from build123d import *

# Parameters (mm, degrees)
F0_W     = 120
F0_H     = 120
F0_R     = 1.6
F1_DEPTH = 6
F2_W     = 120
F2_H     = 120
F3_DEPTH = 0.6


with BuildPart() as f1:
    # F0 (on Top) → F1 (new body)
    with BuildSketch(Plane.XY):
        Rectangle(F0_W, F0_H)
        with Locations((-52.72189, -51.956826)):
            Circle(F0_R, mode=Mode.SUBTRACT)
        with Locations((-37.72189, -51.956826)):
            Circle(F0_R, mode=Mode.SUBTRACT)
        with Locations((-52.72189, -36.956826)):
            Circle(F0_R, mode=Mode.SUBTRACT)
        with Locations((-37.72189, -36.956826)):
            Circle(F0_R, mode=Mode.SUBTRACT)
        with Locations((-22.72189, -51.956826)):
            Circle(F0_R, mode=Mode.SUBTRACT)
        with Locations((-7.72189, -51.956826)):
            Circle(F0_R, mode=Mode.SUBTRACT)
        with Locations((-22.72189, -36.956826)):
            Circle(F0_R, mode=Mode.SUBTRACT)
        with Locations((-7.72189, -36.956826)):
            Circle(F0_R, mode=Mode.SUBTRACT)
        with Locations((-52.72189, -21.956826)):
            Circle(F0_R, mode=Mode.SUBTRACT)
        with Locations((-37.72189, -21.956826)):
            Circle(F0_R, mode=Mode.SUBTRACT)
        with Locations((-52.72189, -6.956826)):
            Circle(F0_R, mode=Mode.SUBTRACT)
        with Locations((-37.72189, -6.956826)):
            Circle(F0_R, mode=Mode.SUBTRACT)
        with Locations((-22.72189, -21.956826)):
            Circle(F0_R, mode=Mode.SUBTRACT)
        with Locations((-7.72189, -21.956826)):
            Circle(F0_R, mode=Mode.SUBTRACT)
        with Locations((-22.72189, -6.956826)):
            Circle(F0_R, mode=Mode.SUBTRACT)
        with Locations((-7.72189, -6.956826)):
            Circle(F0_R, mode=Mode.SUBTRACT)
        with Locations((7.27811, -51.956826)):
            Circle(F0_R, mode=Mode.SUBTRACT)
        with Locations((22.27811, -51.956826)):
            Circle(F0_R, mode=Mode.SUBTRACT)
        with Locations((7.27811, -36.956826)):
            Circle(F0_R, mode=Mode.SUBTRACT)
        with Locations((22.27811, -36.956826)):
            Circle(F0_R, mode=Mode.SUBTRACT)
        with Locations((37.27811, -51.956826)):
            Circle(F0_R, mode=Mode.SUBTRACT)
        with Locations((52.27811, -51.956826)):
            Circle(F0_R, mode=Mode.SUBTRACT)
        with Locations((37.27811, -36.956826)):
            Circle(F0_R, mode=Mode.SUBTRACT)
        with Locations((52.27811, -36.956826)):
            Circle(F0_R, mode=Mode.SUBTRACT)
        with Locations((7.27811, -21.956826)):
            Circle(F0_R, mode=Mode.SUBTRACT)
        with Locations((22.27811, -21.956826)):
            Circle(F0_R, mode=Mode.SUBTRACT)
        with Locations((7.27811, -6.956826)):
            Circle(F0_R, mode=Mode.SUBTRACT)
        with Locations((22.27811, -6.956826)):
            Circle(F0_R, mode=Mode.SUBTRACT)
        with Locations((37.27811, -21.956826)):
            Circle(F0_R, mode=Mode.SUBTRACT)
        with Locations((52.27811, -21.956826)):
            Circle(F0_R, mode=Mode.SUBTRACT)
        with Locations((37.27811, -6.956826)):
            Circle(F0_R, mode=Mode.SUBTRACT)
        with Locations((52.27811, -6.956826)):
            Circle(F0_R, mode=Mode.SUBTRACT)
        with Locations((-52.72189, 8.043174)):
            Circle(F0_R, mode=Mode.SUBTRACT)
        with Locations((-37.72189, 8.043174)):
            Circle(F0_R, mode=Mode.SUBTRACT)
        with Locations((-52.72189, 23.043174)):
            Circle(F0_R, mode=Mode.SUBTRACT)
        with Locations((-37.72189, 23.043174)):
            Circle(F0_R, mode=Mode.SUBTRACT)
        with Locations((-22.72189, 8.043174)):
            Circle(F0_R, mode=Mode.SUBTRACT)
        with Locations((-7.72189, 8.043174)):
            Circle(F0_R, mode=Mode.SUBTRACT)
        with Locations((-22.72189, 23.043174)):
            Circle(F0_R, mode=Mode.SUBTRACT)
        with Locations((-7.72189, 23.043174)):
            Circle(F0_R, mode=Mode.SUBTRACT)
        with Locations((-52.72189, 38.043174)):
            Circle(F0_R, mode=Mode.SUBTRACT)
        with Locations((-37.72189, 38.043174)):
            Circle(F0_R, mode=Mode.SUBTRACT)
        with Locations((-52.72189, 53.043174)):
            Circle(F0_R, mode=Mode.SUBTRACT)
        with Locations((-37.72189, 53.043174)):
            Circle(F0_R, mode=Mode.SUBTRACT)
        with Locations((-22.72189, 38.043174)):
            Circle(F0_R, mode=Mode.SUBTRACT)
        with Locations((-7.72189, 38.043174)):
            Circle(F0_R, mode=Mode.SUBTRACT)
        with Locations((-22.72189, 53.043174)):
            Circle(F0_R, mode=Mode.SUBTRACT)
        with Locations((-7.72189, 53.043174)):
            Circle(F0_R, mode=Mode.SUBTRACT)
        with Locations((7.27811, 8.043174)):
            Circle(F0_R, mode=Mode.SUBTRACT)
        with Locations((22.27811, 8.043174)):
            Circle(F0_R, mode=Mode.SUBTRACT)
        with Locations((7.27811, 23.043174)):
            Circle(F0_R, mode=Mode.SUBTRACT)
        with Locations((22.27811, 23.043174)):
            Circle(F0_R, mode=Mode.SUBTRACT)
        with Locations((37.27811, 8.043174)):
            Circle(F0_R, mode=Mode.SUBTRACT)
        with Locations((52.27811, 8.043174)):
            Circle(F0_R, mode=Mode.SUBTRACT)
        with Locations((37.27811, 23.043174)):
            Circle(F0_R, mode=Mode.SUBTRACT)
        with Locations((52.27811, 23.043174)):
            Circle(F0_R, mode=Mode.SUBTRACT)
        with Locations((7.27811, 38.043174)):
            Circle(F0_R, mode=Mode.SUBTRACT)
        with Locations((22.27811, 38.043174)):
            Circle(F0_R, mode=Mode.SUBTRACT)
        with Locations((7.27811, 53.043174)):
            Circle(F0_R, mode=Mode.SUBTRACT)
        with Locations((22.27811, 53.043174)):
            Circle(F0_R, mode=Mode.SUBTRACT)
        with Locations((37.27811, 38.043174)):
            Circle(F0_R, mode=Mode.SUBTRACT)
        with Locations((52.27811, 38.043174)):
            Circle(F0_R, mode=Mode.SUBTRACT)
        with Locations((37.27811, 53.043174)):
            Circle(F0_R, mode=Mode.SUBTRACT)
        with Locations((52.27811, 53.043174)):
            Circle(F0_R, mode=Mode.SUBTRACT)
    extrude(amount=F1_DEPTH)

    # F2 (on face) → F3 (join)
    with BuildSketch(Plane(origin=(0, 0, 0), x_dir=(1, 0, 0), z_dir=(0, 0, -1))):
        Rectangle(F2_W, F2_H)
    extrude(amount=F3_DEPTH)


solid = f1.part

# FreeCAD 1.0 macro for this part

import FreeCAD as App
import Part
import Sketcher
from FreeCAD import Vector

doc = App.newDocument("Part")
body = doc.addObject("PartDesign::Body", "Body")

sketch1 = body.newObject("Sketcher::SketchObject", "Sketch")
sketch1.AttachmentSupport = (doc.getObject("XY_Plane"), [""])
sketch1.MapMode = "FlatFace"
sketch1.addGeometry([
    Part.LineSegment(Vector(-60, 60, 0), Vector(-60, -60, 0)),
    Part.LineSegment(Vector(-60, -60, 0), Vector(60, -60, 0)),
    Part.LineSegment(Vector(60, -60, 0), Vector(60, 60, 0)),
    Part.LineSegment(Vector(60, 60, 0), Vector(-60, 60, 0)),
    Part.Circle(Vector(-52.7, -52, 0), Vector(0, 0, 1), 1.6),
    Part.Circle(Vector(-37.7, -52, 0), Vector(0, 0, 1), 1.6),
    Part.Circle(Vector(-52.7, -37, 0), Vector(0, 0, 1), 1.6),
    Part.Circle(Vector(-37.7, -37, 0), Vector(0, 0, 1), 1.6),
    Part.Circle(Vector(-22.7, -52, 0), Vector(0, 0, 1), 1.6),
    Part.Circle(Vector(-7.7, -52, 0), Vector(0, 0, 1), 1.6),
    Part.Circle(Vector(-22.7, -37, 0), Vector(0, 0, 1), 1.6),
    Part.Circle(Vector(-7.7, -37, 0), Vector(0, 0, 1), 1.6),
    Part.Circle(Vector(-52.7, -22, 0), Vector(0, 0, 1), 1.6),
    Part.Circle(Vector(-37.7, -22, 0), Vector(0, 0, 1), 1.6),
    Part.Circle(Vector(-52.7, -7, 0), Vector(0, 0, 1), 1.6),
    Part.Circle(Vector(-37.7, -7, 0), Vector(0, 0, 1), 1.6),
    Part.Circle(Vector(-22.7, -22, 0), Vector(0, 0, 1), 1.6),
    Part.Circle(Vector(-7.7, -22, 0), Vector(0, 0, 1), 1.6),
    Part.Circle(Vector(-22.7, -7, 0), Vector(0, 0, 1), 1.6),
    Part.Circle(Vector(-7.7, -7, 0), Vector(0, 0, 1), 1.6),
    Part.Circle(Vector(7.3, -52, 0), Vector(0, 0, 1), 1.6),
    Part.Circle(Vector(22.3, -52, 0), Vector(0, 0, 1), 1.6),
    Part.Circle(Vector(7.3, -37, 0), Vector(0, 0, 1), 1.6),
    Part.Circle(Vector(22.3, -37, 0), Vector(0, 0, 1), 1.6),
    Part.Circle(Vector(37.3, -52, 0), Vector(0, 0, 1), 1.6),
    Part.Circle(Vector(52.3, -52, 0), Vector(0, 0, 1), 1.6),
    Part.Circle(Vector(37.3, -37, 0), Vector(0, 0, 1), 1.6),
    Part.Circle(Vector(52.3, -37, 0), Vector(0, 0, 1), 1.6),
    Part.Circle(Vector(7.3, -22, 0), Vector(0, 0, 1), 1.6),
    Part.Circle(Vector(22.3, -22, 0), Vector(0, 0, 1), 1.6),
    Part.Circle(Vector(7.3, -7, 0), Vector(0, 0, 1), 1.6),
    Part.Circle(Vector(22.3, -7, 0), Vector(0, 0, 1), 1.6),
    Part.Circle(Vector(37.3, -22, 0), Vector(0, 0, 1), 1.6),
    Part.Circle(Vector(52.3, -22, 0), Vector(0, 0, 1), 1.6),
    Part.Circle(Vector(37.3, -7, 0), Vector(0, 0, 1), 1.6),
    Part.Circle(Vector(52.3, -7, 0), Vector(0, 0, 1), 1.6),
    Part.Circle(Vector(-52.7, 8, 0), Vector(0, 0, 1), 1.6),
    Part.Circle(Vector(-37.7, 8, 0), Vector(0, 0, 1), 1.6),
    Part.Circle(Vector(-52.7, 23, 0), Vector(0, 0, 1), 1.6),
    Part.Circle(Vector(-37.7, 23, 0), Vector(0, 0, 1), 1.6),
    Part.Circle(Vector(-22.7, 8, 0), Vector(0, 0, 1), 1.6),
    Part.Circle(Vector(-7.7, 8, 0), Vector(0, 0, 1), 1.6),
    Part.Circle(Vector(-22.7, 23, 0), Vector(0, 0, 1), 1.6),
    Part.Circle(Vector(-7.7, 23, 0), Vector(0, 0, 1), 1.6),
    Part.Circle(Vector(-52.7, 38, 0), Vector(0, 0, 1), 1.6),
    Part.Circle(Vector(-37.7, 38, 0), Vector(0, 0, 1), 1.6),
    Part.Circle(Vector(-52.7, 53, 0), Vector(0, 0, 1), 1.6),
    Part.Circle(Vector(-37.7, 53, 0), Vector(0, 0, 1), 1.6),
    Part.Circle(Vector(-22.7, 38, 0), Vector(0, 0, 1), 1.6),
    Part.Circle(Vector(-7.7, 38, 0), Vector(0, 0, 1), 1.6),
    Part.Circle(Vector(-22.7, 53, 0), Vector(0, 0, 1), 1.6),
    Part.Circle(Vector(-7.7, 53, 0), Vector(0, 0, 1), 1.6),
    Part.Circle(Vector(7.3, 8, 0), Vector(0, 0, 1), 1.6),
    Part.Circle(Vector(22.3, 8, 0), Vector(0, 0, 1), 1.6),
    Part.Circle(Vector(7.3, 23, 0), Vector(0, 0, 1), 1.6),
    Part.Circle(Vector(22.3, 23, 0), Vector(0, 0, 1), 1.6),
    Part.Circle(Vector(37.3, 8, 0), Vector(0, 0, 1), 1.6),
    Part.Circle(Vector(52.3, 8, 0), Vector(0, 0, 1), 1.6),
    Part.Circle(Vector(37.3, 23, 0), Vector(0, 0, 1), 1.6),
    Part.Circle(Vector(52.3, 23, 0), Vector(0, 0, 1), 1.6),
    Part.Circle(Vector(7.3, 38, 0), Vector(0, 0, 1), 1.6),
    Part.Circle(Vector(22.3, 38, 0), Vector(0, 0, 1), 1.6),
    Part.Circle(Vector(7.3, 53, 0), Vector(0, 0, 1), 1.6),
    Part.Circle(Vector(22.3, 53, 0), Vector(0, 0, 1), 1.6),
    Part.Circle(Vector(37.3, 38, 0), Vector(0, 0, 1), 1.6),
    Part.Circle(Vector(52.3, 38, 0), Vector(0, 0, 1), 1.6),
    Part.Circle(Vector(37.3, 53, 0), Vector(0, 0, 1), 1.6),
    Part.Circle(Vector(52.3, 53, 0), Vector(0, 0, 1), 1.6),
], False)
sketch1.addConstraint([
    Sketcher.Constraint("Coincident", 0, 2, 1, 1),
    Sketcher.Constraint("Coincident", 1, 2, 2, 1),
    Sketcher.Constraint("Coincident", 2, 2, 3, 1),
    Sketcher.Constraint("Coincident", 3, 2, 0, 1),
    Sketcher.Constraint("Vertical", 0),
    Sketcher.Constraint("Horizontal", 1),
    Sketcher.Constraint("Vertical", 2),
    Sketcher.Constraint("Horizontal", 3),
    Sketcher.Constraint("Equal", 4, 5),
    Sketcher.Constraint("Equal", 5, 6),
    Sketcher.Constraint("Equal", 6, 7),
    Sketcher.Constraint("Equal", 7, 8),
    Sketcher.Constraint("Equal", 8, 9),
    Sketcher.Constraint("Equal", 9, 10),
    Sketcher.Constraint("Equal", 10, 11),
    Sketcher.Constraint("Equal", 11, 12),
    Sketcher.Constraint("Equal", 12, 13),
    Sketcher.Constraint("Equal", 13, 14),
    Sketcher.Constraint("Equal", 14, 15),
    Sketcher.Constraint("Equal", 15, 16),
    Sketcher.Constraint("Equal", 16, 17),
    Sketcher.Constraint("Equal", 17, 18),
    Sketcher.Constraint("Equal", 18, 19),
    Sketcher.Constraint("Equal", 19, 20),
    Sketcher.Constraint("Equal", 20, 21),
    Sketcher.Constraint("Equal", 21, 22),
    Sketcher.Constraint("Equal", 22, 23),
    Sketcher.Constraint("Equal", 23, 24),
    Sketcher.Constraint("Equal", 24, 25),
    Sketcher.Constraint("Equal", 25, 26),
    Sketcher.Constraint("Equal", 26, 27),
    Sketcher.Constraint("Equal", 27, 28),
    Sketcher.Constraint("Equal", 28, 29),
    Sketcher.Constraint("Equal", 29, 30),
    Sketcher.Constraint("Equal", 30, 31),
    Sketcher.Constraint("Equal", 31, 32),
    Sketcher.Constraint("Equal", 32, 33),
    Sketcher.Constraint("Equal", 33, 34),
    Sketcher.Constraint("Equal", 34, 35),
    Sketcher.Constraint("Equal", 35, 36),
    Sketcher.Constraint("Equal", 36, 37),
    Sketcher.Constraint("Equal", 37, 38),
    Sketcher.Constraint("Equal", 38, 39),
    Sketcher.Constraint("Equal", 39, 40),
    Sketcher.Constraint("Equal", 40, 41),
    Sketcher.Constraint("Equal", 41, 42),
    Sketcher.Constraint("Equal", 42, 43),
    Sketcher.Constraint("Equal", 43, 44),
    Sketcher.Constraint("Equal", 44, 45),
    Sketcher.Constraint("Equal", 45, 46),
    Sketcher.Constraint("Equal", 46, 47),
    Sketcher.Constraint("Equal", 47, 48),
    Sketcher.Constraint("Equal", 48, 49),
    Sketcher.Constraint("Equal", 49, 50),
    Sketcher.Constraint("Equal", 50, 51),
    Sketcher.Constraint("Equal", 51, 52),
    Sketcher.Constraint("Equal", 52, 53),
    Sketcher.Constraint("Equal", 53, 54),
    Sketcher.Constraint("Equal", 54, 55),
    Sketcher.Constraint("Equal", 55, 56),
    Sketcher.Constraint("Equal", 56, 57),
    Sketcher.Constraint("Equal", 57, 58),
    Sketcher.Constraint("Equal", 58, 59),
    Sketcher.Constraint("Equal", 59, 60),
    Sketcher.Constraint("Equal", 60, 61),
    Sketcher.Constraint("Equal", 61, 62),
    Sketcher.Constraint("Equal", 62, 63),
    Sketcher.Constraint("Equal", 63, 64),
    Sketcher.Constraint("Equal", 64, 65),
    Sketcher.Constraint("Equal", 65, 66),
    Sketcher.Constraint("Equal", 66, 67),
    Sketcher.Constraint("Symmetric", 0, 2, 2, 2, -1, 1),
    Sketcher.Constraint("Horizontal", 4, 3, 5, 3),
    Sketcher.Constraint("Horizontal", 6, 3, 7, 3),
    Sketcher.Constraint("Horizontal", 5, 3, 8, 3),
    Sketcher.Constraint("Horizontal", 8, 3, 9, 3),
    Sketcher.Constraint("Horizontal", 7, 3, 10, 3),
    Sketcher.Constraint("Horizontal", 10, 3, 11, 3),
    Sketcher.Constraint("Horizontal", 12, 3, 13, 3),
    Sketcher.Constraint("Horizontal", 14, 3, 15, 3),
    Sketcher.Constraint("Horizontal", 13, 3, 16, 3),
    Sketcher.Constraint("Horizontal", 16, 3, 17, 3),
    Sketcher.Constraint("Horizontal", 15, 3, 18, 3),
    Sketcher.Constraint("Horizontal", 18, 3, 19, 3),
    Sketcher.Constraint("Horizontal", 9, 3, 20, 3),
    Sketcher.Constraint("Horizontal", 20, 3, 21, 3),
    Sketcher.Constraint("Horizontal", 11, 3, 22, 3),
    Sketcher.Constraint("Horizontal", 22, 3, 23, 3),
    Sketcher.Constraint("Horizontal", 21, 3, 24, 3),
    Sketcher.Constraint("Horizontal", 24, 3, 25, 3),
    Sketcher.Constraint("Horizontal", 23, 3, 26, 3),
    Sketcher.Constraint("Horizontal", 26, 3, 27, 3),
    Sketcher.Constraint("Horizontal", 17, 3, 28, 3),
    Sketcher.Constraint("Horizontal", 28, 3, 29, 3),
    Sketcher.Constraint("Horizontal", 19, 3, 30, 3),
    Sketcher.Constraint("Horizontal", 30, 3, 31, 3),
    Sketcher.Constraint("Horizontal", 29, 3, 32, 3),
    Sketcher.Constraint("Horizontal", 32, 3, 33, 3),
    Sketcher.Constraint("Horizontal", 31, 3, 34, 3),
    Sketcher.Constraint("Horizontal", 34, 3, 35, 3),
    Sketcher.Constraint("Horizontal", 36, 3, 37, 3),
    Sketcher.Constraint("Horizontal", 38, 3, 39, 3),
    Sketcher.Constraint("Horizontal", 37, 3, 40, 3),
    Sketcher.Constraint("Horizontal", 40, 3, 41, 3),
    Sketcher.Constraint("Horizontal", 39, 3, 42, 3),
    Sketcher.Constraint("Horizontal", 42, 3, 43, 3),
    Sketcher.Constraint("Horizontal", 44, 3, 45, 3),
    Sketcher.Constraint("Horizontal", 46, 3, 47, 3),
    Sketcher.Constraint("Horizontal", 45, 3, 48, 3),
    Sketcher.Constraint("Horizontal", 48, 3, 49, 3),
    Sketcher.Constraint("Horizontal", 47, 3, 50, 3),
    Sketcher.Constraint("Horizontal", 50, 3, 51, 3),
    Sketcher.Constraint("Horizontal", 41, 3, 52, 3),
    Sketcher.Constraint("Horizontal", 52, 3, 53, 3),
    Sketcher.Constraint("Horizontal", 43, 3, 54, 3),
    Sketcher.Constraint("Horizontal", 54, 3, 55, 3),
    Sketcher.Constraint("Horizontal", 53, 3, 56, 3),
    Sketcher.Constraint("Horizontal", 56, 3, 57, 3),
    Sketcher.Constraint("Horizontal", 55, 3, 58, 3),
    Sketcher.Constraint("Horizontal", 58, 3, 59, 3),
    Sketcher.Constraint("Horizontal", 49, 3, 60, 3),
    Sketcher.Constraint("Horizontal", 60, 3, 61, 3),
    Sketcher.Constraint("Horizontal", 51, 3, 62, 3),
    Sketcher.Constraint("Horizontal", 62, 3, 63, 3),
    Sketcher.Constraint("Horizontal", 61, 3, 64, 3),
    Sketcher.Constraint("Horizontal", 64, 3, 65, 3),
    Sketcher.Constraint("Horizontal", 63, 3, 66, 3),
    Sketcher.Constraint("Horizontal", 66, 3, 67, 3),
    Sketcher.Constraint("Vertical", 4, 3, 6, 3),
    Sketcher.Constraint("Vertical", 5, 3, 7, 3),
    Sketcher.Constraint("Vertical", 8, 3, 10, 3),
    Sketcher.Constraint("Vertical", 9, 3, 11, 3),
    Sketcher.Constraint("Vertical", 6, 3, 12, 3),
    Sketcher.Constraint("Vertical", 7, 3, 13, 3),
    Sketcher.Constraint("Vertical", 12, 3, 14, 3),
    Sketcher.Constraint("Vertical", 13, 3, 15, 3),
    Sketcher.Constraint("Vertical", 10, 3, 16, 3),
    Sketcher.Constraint("Vertical", 11, 3, 17, 3),
    Sketcher.Constraint("Vertical", 16, 3, 18, 3),
    Sketcher.Constraint("Vertical", 17, 3, 19, 3),
    Sketcher.Constraint("Vertical", 20, 3, 22, 3),
    Sketcher.Constraint("Vertical", 21, 3, 23, 3),
    Sketcher.Constraint("Vertical", 24, 3, 26, 3),
    Sketcher.Constraint("Vertical", 25, 3, 27, 3),
    Sketcher.Constraint("Vertical", 22, 3, 28, 3),
    Sketcher.Constraint("Vertical", 23, 3, 29, 3),
    Sketcher.Constraint("Vertical", 28, 3, 30, 3),
    Sketcher.Constraint("Vertical", 29, 3, 31, 3),
    Sketcher.Constraint("Vertical", 26, 3, 32, 3),
    Sketcher.Constraint("Vertical", 27, 3, 33, 3),
    Sketcher.Constraint("Vertical", 32, 3, 34, 3),
    Sketcher.Constraint("Vertical", 33, 3, 35, 3),
    Sketcher.Constraint("Vertical", 14, 3, 36, 3),
    Sketcher.Constraint("Vertical", 15, 3, 37, 3),
    Sketcher.Constraint("Vertical", 36, 3, 38, 3),
    Sketcher.Constraint("Vertical", 37, 3, 39, 3),
    Sketcher.Constraint("Vertical", 18, 3, 40, 3),
    Sketcher.Constraint("Vertical", 19, 3, 41, 3),
    Sketcher.Constraint("Vertical", 40, 3, 42, 3),
    Sketcher.Constraint("Vertical", 41, 3, 43, 3),
    Sketcher.Constraint("Vertical", 38, 3, 44, 3),
    Sketcher.Constraint("Vertical", 39, 3, 45, 3),
    Sketcher.Constraint("Vertical", 44, 3, 46, 3),
    Sketcher.Constraint("Vertical", 45, 3, 47, 3),
    Sketcher.Constraint("Vertical", 42, 3, 48, 3),
    Sketcher.Constraint("Vertical", 43, 3, 49, 3),
    Sketcher.Constraint("Vertical", 48, 3, 50, 3),
    Sketcher.Constraint("Vertical", 49, 3, 51, 3),
    Sketcher.Constraint("Vertical", 30, 3, 52, 3),
    Sketcher.Constraint("Vertical", 31, 3, 53, 3),
    Sketcher.Constraint("Vertical", 52, 3, 54, 3),
    Sketcher.Constraint("Vertical", 53, 3, 55, 3),
    Sketcher.Constraint("Vertical", 34, 3, 56, 3),
    Sketcher.Constraint("Vertical", 35, 3, 57, 3),
    Sketcher.Constraint("Vertical", 56, 3, 58, 3),
    Sketcher.Constraint("Vertical", 57, 3, 59, 3),
    Sketcher.Constraint("Vertical", 54, 3, 60, 3),
    Sketcher.Constraint("Vertical", 55, 3, 61, 3),
    Sketcher.Constraint("Vertical", 60, 3, 62, 3),
    Sketcher.Constraint("Vertical", 61, 3, 63, 3),
    Sketcher.Constraint("Vertical", 58, 3, 64, 3),
    Sketcher.Constraint("Vertical", 59, 3, 65, 3),
    Sketcher.Constraint("Vertical", 64, 3, 66, 3),
    Sketcher.Constraint("Vertical", 65, 3, 67, 3),
    Sketcher.Constraint("Equal", 3, 0),
    Sketcher.Constraint("Diameter", 4, 3.2),
    Sketcher.Constraint("DistanceX", 1, 1, 1, 2, 120.0),
    Sketcher.Constraint("DistanceX", 4, 3, -1, 1, 52.72189),
    Sketcher.Constraint("DistanceX", 5, 3, -1, 1, 37.72189),
    Sketcher.Constraint("DistanceX", 8, 3, -1, 1, 22.72189),
    Sketcher.Constraint("DistanceX", 9, 3, -1, 1, 7.72189),
    Sketcher.Constraint("DistanceX", -1, 1, 20, 3, 7.27811),
    Sketcher.Constraint("DistanceX", -1, 1, 21, 3, 22.27811),
    Sketcher.Constraint("DistanceX", -1, 1, 24, 3, 37.27811),
    Sketcher.Constraint("DistanceX", -1, 1, 25, 3, 52.27811),
    Sketcher.Constraint("DistanceY", 4, 3, -1, 1, 51.956826),
    Sketcher.Constraint("DistanceY", 6, 3, -1, 1, 36.956826),
    Sketcher.Constraint("DistanceY", 12, 3, -1, 1, 21.956826),
    Sketcher.Constraint("DistanceY", 14, 3, -1, 1, 6.956826),
    Sketcher.Constraint("DistanceY", -1, 1, 36, 3, 8.043174),
    Sketcher.Constraint("DistanceY", -1, 1, 38, 3, 23.043174),
    Sketcher.Constraint("DistanceY", -1, 1, 44, 3, 38.043174),
    Sketcher.Constraint("DistanceY", -1, 1, 46, 3, 53.043174),
])
pad1 = body.newObject("PartDesign::Pad", "Pad")
pad1.Profile = sketch1
pad1.Length = 6

sketch2 = body.newObject("Sketcher::SketchObject", "Sketch001")
sketch2.AttachmentSupport = (doc.getObject("XY_Plane"), [""])
sketch2.MapMode = "FlatFace"
sketch2.addGeometry([
    Part.LineSegment(Vector(-60, -60, 0), Vector(-60, 60, 0)),
    Part.LineSegment(Vector(-60, 60, 0), Vector(60, 60, 0)),
    Part.LineSegment(Vector(60, 60, 0), Vector(60, -60, 0)),
    Part.LineSegment(Vector(60, -60, 0), Vector(-60, -60, 0)),
], False)
sketch2.addConstraint([
    Sketcher.Constraint("Coincident", 0, 2, 1, 1),
    Sketcher.Constraint("Coincident", 1, 2, 2, 1),
    Sketcher.Constraint("Coincident", 2, 2, 3, 1),
    Sketcher.Constraint("Coincident", 3, 2, 0, 1),
    Sketcher.Constraint("Vertical", 0),
    Sketcher.Constraint("Horizontal", 1),
    Sketcher.Constraint("Vertical", 2),
    Sketcher.Constraint("Horizontal", 3),
    Sketcher.Constraint("Symmetric", 0, 2, 2, 2, -1, 1),
    Sketcher.Constraint("Equal", 3, 0),
    Sketcher.Constraint("DistanceX", 1, 1, 1, 2, 120.0),
])
pad2 = body.newObject("PartDesign::Pad", "Pad001")
pad2.Profile = sketch2
pad2.Length = 0.6
pad2.Reversed = True

doc.recompute()
